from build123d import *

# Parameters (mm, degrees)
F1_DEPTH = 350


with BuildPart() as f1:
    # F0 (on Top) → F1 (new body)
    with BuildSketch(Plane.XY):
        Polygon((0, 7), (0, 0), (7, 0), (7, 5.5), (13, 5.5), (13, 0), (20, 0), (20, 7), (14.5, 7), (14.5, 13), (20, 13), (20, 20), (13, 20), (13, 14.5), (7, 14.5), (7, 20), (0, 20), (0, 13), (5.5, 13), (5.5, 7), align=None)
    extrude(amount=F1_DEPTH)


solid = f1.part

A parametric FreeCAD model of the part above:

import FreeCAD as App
import Part
import Sketcher
from FreeCAD import Vector

doc = App.newDocument("Part")
params = doc.addObject("Spreadsheet::Sheet", "Params")
for row, (alias, value) in enumerate([
    ("sketch1_width", "7 mm"),
    ("sketch1_width2", "6 mm"),
    ("sketch1_width3", "5.5 mm"),
    ("pad1_length", "350 mm"),
], start=1):
    params.set(f"A{row}", alias)
    params.set(f"B{row}", "=" + value)
    params.setAlias(f"B{row}", alias)

body = doc.addObject("PartDesign::Body", "Body")

sketch1 = doc.addObject("Sketcher::SketchObject", "Sketch")
body.addObject(sketch1)
sketch1.AttachmentSupport = (doc.XY_Plane, [""])
sketch1.MapMode = "FlatFace"
sketch1.addGeometry([
    Part.LineSegment(Vector(0, 7, 0), Vector(0, 0, 0)),
    Part.LineSegment(Vector(0, 0, 0), Vector(7, 0, 0)),
    Part.LineSegment(Vector(7, 0, 0), Vector(7, 6, 0)),
    Part.LineSegment(Vector(7, 6, 0), Vector(13, 6, 0)),
    Part.LineSegment(Vector(13, 6, 0), Vector(13, 0, 0)),
    Part.LineSegment(Vector(13, 0, 0), Vector(20, 0, 0)),
    Part.LineSegment(Vector(20, 0, 0), Vector(20, 7, 0)),
    Part.LineSegment(Vector(20, 7, 0), Vector(14, 7, 0)),
    Part.LineSegment(Vector(14, 7, 0), Vector(14, 13, 0)),
    Part.LineSegment(Vector(14, 13, 0), Vector(20, 13, 0)),
    Part.LineSegment(Vector(20, 13, 0), Vector(20, 20, 0)),
    Part.LineSegment(Vector(20, 20, 0), Vector(13, 20, 0)),
    Part.LineSegment(Vector(13, 20, 0), Vector(13, 14, 0)),
    Part.LineSegment(Vector(13, 14, 0), Vector(7, 14, 0)),
    Part.LineSegment(Vector(7, 14, 0), Vector(7, 20, 0)),
    Part.LineSegment(Vector(7, 20, 0), Vector(0, 20, 0)),
    Part.LineSegment(Vector(0, 20, 0), Vector(0, 13, 0)),
    Part.LineSegment(Vector(0, 13, 0), Vector(6, 13, 0)),
    Part.LineSegment(Vector(6, 13, 0), Vector(6, 7, 0)),
    Part.LineSegment(Vector(6, 7, 0), Vector(0, 7, 0)),
], False)
sketch1.addConstraint([
    Sketcher.Constraint("Coincident", 0, 2, 1, 1),
    Sketcher.Constraint("Coincident", 1, 2, 2, 1),
    Sketcher.Constraint("Coincident", 2, 2, 3, 1),
    Sketcher.Constraint("Coincident", 3, 2, 4, 1),
    Sketcher.Constraint("Coincident", 4, 2, 5, 1),
    Sketcher.Constraint("Coincident", 5, 2, 6, 1),
    Sketcher.Constraint("Coincident", 6, 2, 7, 1),
    Sketcher.Constraint("Coincident", 7, 2, 8, 1),
    Sketcher.Constraint("Coincident", 8, 2, 9, 1),
    Sketcher.Constraint("Coincident", 9, 2, 10, 1),
    Sketcher.Constraint("Coincident", 10, 2, 11, 1),
    Sketcher.Constraint("Coincident", 11, 2, 12, 1),
    Sketcher.Constraint("Coincident", 12, 2, 13, 1),
    Sketcher.Constraint("Coincident", 13, 2, 14, 1),
    Sketcher.Constraint("Coincident", 14, 2, 15, 1),
    Sketcher.Constraint("Coincident", 15, 2, 16, 1),
    Sketcher.Constraint("Coincident", 16, 2, 17, 1),
    Sketcher.Constraint("Coincident", 17, 2, 18, 1),
    Sketcher.Constraint("Coincident", 18, 2, 19, 1),
    Sketcher.Constraint("Coincident", 19, 2, 0, 1),
    Sketcher.Constraint("Vertical", 0),
    Sketcher.Constraint("Horizontal", 1),
    Sketcher.Constraint("Vertical", 2),
    Sketcher.Constraint("Horizontal", 3),
    Sketcher.Constraint("Vertical", 4),
    Sketcher.Constraint("Horizontal", 5),
    Sketcher.Constraint("Vertical", 6),
    Sketcher.Constraint("Horizontal", 7),
    Sketcher.Constraint("Vertical", 8),
    Sketcher.Constraint("Horizontal", 9),
    Sketcher.Constraint("Vertical", 10),
    Sketcher.Constraint("Horizontal", 11),
    Sketcher.Constraint("Vertical", 12),
    Sketcher.Constraint("Horizontal", 13),
    Sketcher.Constraint("Vertical", 14),
    Sketcher.Constraint("Horizontal", 15),
    Sketcher.Constraint("Vertical", 16),
    Sketcher.Constraint("Horizontal", 17),
    Sketcher.Constraint("Vertical", 18),
    Sketcher.Constraint("Horizontal", 19),
    Sketcher.Constraint("Coincident", 0, 2, -1, 1),
    Sketcher.Constraint("PointOnObject", 4, 2, -1),
    Sketcher.Constraint("PointOnObject", 15, 2, -2),
    Sketcher.Constraint("Horizontal", 11, 2, 14, 2),
    Sketcher.Constraint("Horizontal", 9, 2, 16, 2),
    Sketcher.Constraint("Horizontal", 7, 2, 18, 2),
    Sketcher.Constraint("Vertical", 6, 2, 9, 2),
    Sketcher.Constraint("Vertical", 4, 2, 11, 2),
    Sketcher.Constraint("Vertical", 2, 2, 13, 2),
    Sketcher.Constraint("Equal", 1, 5),
    Sketcher.Constraint("Equal", 9, 17),
    Sketcher.Constraint("Equal", 15, 0),
    Sketcher.Constraint("Equal", 19, 2),
    Sketcher.Constraint("Equal", 13, 8),
    Sketcher.Constraint("Equal", 6, 10),
    Sketcher.Constraint("Equal", 4, 12),
    Sketcher.Constraint("DistanceX", 1, 1, 1, 2, 7.0),
    Sketcher.Constraint("DistanceX", 3, 1, 3, 2, 6.0),
    Sketcher.Constraint("DistanceX", 7, 2, 7, 1, 5.5),
])
sketch1.setExpression("Constraints[56]", "Params.sketch1_width")
sketch1.setExpression("Constraints[57]", "Params.sketch1_width2")
sketch1.setExpression("Constraints[58]", "Params.sketch1_width3")
pad1 = doc.addObject("PartDesign::Pad", "Pad")
body.addObject(pad1)
pad1.Profile = sketch1
pad1.setExpression("Length", "Params.pad1_length")

doc.recompute()
